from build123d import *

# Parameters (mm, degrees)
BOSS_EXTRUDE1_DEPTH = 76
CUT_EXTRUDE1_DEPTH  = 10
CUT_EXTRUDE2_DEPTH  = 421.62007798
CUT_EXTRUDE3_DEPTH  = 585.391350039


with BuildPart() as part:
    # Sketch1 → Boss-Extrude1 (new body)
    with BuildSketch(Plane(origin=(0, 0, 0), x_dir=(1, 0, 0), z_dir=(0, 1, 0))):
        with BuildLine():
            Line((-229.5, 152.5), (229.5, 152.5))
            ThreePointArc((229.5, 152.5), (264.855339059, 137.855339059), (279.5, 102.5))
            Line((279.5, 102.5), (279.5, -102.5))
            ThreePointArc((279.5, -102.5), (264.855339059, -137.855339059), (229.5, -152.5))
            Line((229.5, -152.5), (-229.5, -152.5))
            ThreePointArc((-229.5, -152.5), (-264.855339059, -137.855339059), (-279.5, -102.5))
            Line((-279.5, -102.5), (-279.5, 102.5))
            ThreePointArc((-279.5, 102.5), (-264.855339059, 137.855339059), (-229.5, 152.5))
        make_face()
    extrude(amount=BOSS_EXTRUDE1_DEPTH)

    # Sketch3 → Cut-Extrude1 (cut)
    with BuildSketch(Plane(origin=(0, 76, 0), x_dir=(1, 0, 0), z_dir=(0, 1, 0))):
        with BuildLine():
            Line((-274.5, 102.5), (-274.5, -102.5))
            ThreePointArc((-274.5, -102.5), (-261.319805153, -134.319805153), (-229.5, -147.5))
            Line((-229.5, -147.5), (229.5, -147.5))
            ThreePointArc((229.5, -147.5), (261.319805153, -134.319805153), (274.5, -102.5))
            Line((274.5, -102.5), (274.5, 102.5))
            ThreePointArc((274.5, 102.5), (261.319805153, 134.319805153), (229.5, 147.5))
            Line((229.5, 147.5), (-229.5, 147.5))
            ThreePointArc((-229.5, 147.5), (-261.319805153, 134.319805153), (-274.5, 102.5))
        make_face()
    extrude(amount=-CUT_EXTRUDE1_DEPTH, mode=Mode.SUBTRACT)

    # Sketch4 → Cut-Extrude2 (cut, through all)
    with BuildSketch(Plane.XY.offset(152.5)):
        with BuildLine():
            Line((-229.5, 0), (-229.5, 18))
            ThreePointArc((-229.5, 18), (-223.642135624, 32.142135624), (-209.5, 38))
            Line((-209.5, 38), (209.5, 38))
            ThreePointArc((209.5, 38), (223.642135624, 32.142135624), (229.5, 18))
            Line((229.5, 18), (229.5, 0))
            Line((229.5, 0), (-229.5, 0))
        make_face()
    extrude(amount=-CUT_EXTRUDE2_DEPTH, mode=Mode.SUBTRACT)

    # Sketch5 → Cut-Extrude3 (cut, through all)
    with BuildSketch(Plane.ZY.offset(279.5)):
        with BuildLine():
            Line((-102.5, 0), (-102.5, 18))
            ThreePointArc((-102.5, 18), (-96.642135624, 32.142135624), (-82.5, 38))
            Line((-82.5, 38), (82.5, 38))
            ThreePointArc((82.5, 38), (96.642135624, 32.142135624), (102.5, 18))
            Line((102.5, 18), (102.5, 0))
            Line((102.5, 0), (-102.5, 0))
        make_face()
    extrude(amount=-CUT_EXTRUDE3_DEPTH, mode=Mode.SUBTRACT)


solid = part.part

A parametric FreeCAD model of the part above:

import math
import FreeCAD as App
import Part
import Sketcher
from FreeCAD import Vector

doc = App.newDocument("Part")
body = doc.addObject("PartDesign::Body", "Body")

sketch1 = doc.addObject("Sketcher::SketchObject", "Sketch")
body.addObject(sketch1)
sketch1.AttachmentSupport = (doc.XZ_Plane, [""])
sketch1.MapMode = "FlatFace"
sketch1.addGeometry(Part.LineSegment(Vector(230, -152, 0), Vector(-230, -152, 0)), False)
sketch1.addGeometry(Part.ArcOfCircle(Part.Circle(Vector(-229, -102, 0), Vector(0, 0, 1), 50), math.radians(-180), math.radians(-90)), False)
sketch1.addGeometry(Part.LineSegment(Vector(-280, -102, 0), Vector(-280, 102, 0)), False)
sketch1.addGeometry(Part.ArcOfCircle(Part.Circle(Vector(-229, 102, 0), Vector(0, 0, 1), 50), math.radians(90), math.radians(180)), False)
sketch1.addGeometry(Part.LineSegment(Vector(-230, 152, 0), Vector(230, 152, 0)), False)
sketch1.addGeometry(Part.ArcOfCircle(Part.Circle(Vector(229, 102, 0), Vector(0, 0, 1), 50), math.radians(0), math.radians(90)), False)
sketch1.addGeometry(Part.LineSegment(Vector(280, 102, 0), Vector(280, -102, 0)), False)
sketch1.addGeometry(Part.ArcOfCircle(Part.Circle(Vector(229, -102, 0), Vector(0, 0, 1), 50), math.radians(-90), math.radians(0)), False)
sketch1.addConstraint(Sketcher.Constraint("Tangent", 0, 2, 1, 2))
sketch1.addConstraint(Sketcher.Constraint("Tangent", 1, 1, 2, 1))
sketch1.addConstraint(Sketcher.Constraint("Tangent", 2, 2, 3, 2))
sketch1.addConstraint(Sketcher.Constraint("Tangent", 3, 1, 4, 1))
sketch1.addConstraint(Sketcher.Constraint("Tangent", 4, 2, 5, 2))
sketch1.addConstraint(Sketcher.Constraint("Tangent", 5, 1, 6, 1))
sketch1.addConstraint(Sketcher.Constraint("Tangent", 6, 2, 7, 2))
sketch1.addConstraint(Sketcher.Constraint("Tangent", 7, 1, 0, 1))
sketch1.addConstraint(Sketcher.Constraint("Horizontal", 0))
sketch1.addConstraint(Sketcher.Constraint("Vertical", 2))
sketch1.addConstraint(Sketcher.Constraint("Horizontal", 4))
sketch1.addConstraint(Sketcher.Constraint("Vertical", 6))
sketch1.addConstraint(Sketcher.Constraint("Equal", 1, 3))
sketch1.addConstraint(Sketcher.Constraint("Equal", 3, 5))
sketch1.addConstraint(Sketcher.Constraint("Equal", 5, 7))
sketch1.addConstraint(Sketcher.Constraint("Symmetric", 1, 3, 5, 3, -1, 1))
sketch1.addConstraint(Sketcher.Constraint("Radius", 1, 50.0))
sketch1.addConstraint(Sketcher.Constraint("DistanceX", 0, 2, 0, 1, 459.0))
sketch1.addConstraint(Sketcher.Constraint("DistanceY", 2, 1, 2, 2, 205.0))
pad1 = doc.addObject("PartDesign::Pad", "Pad")
body.addObject(pad1)
pad1.Profile = sketch1
pad1.Length = 76
pad1.Reversed = True

sketch2 = doc.addObject("Sketcher::SketchObject", "Sketch001")
body.addObject(sketch2)
sketch2.AttachmentSupport = (doc.XZ_Plane, [""])
sketch2.MapMode = "FlatFace"
sketch2.AttachmentOffset = App.Placement(Vector(0, 0, -76), App.Rotation())
sketch2.addGeometry(Part.LineSegment(Vector(-274, -102, 0), Vector(-274, 102, 0)), False)
sketch2.addGeometry(Part.ArcOfCircle(Part.Circle(Vector(-229, 102, 0), Vector(0, 0, 1), 45), math.radians(90), math.radians(180)), False)
sketch2.addGeometry(Part.LineSegment(Vector(-230, 148, 0), Vector(230, 148, 0)), False)
sketch2.addGeometry(Part.ArcOfCircle(Part.Circle(Vector(229, 102, 0), Vector(0, 0, 1), 45), math.radians(0), math.radians(90)), False)
sketch2.addGeometry(Part.LineSegment(Vector(274, 102, 0), Vector(274, -102, 0)), False)
sketch2.addGeometry(Part.ArcOfCircle(Part.Circle(Vector(229, -102, 0), Vector(0, 0, 1), 45), math.radians(-90), math.radians(0)), False)
sketch2.addGeometry(Part.LineSegment(Vector(230, -148, 0), Vector(-230, -148, 0)), False)
sketch2.addGeometry(Part.ArcOfCircle(Part.Circle(Vector(-229, -102, 0), Vector(0, 0, 1), 45), math.radians(-180), math.radians(-90)), False)
sketch2.addConstraint(Sketcher.Constraint("Tangent", 0, 2, 1, 2))
sketch2.addConstraint(Sketcher.Constraint("Tangent", 1, 1, 2, 1))
sketch2.addConstraint(Sketcher.Constraint("Tangent", 2, 2, 3, 2))
sketch2.addConstraint(Sketcher.Constraint("Tangent", 3, 1, 4, 1))
sketch2.addConstraint(Sketcher.Constraint("Tangent", 4, 2, 5, 2))
sketch2.addConstraint(Sketcher.Constraint("Tangent", 5, 1, 6, 1))
sketch2.addConstraint(Sketcher.Constraint("Tangent", 6, 2, 7, 2))
sketch2.addConstraint(Sketcher.Constraint("Tangent", 7, 1, 0, 1))
sketch2.addConstraint(Sketcher.Constraint("Vertical", 0))
sketch2.addConstraint(Sketcher.Constraint("Horizontal", 2))
sketch2.addConstraint(Sketcher.Constraint("Vertical", 4))
sketch2.addConstraint(Sketcher.Constraint("Horizontal", 6))
sketch2.addConstraint(Sketcher.Constraint("Equal", 1, 3))
sketch2.addConstraint(Sketcher.Constraint("Equal", 3, 5))
sketch2.addConstraint(Sketcher.Constraint("Equal", 5, 7))
sketch2.addConstraint(Sketcher.Constraint("Symmetric", 1, 3, 5, 3, -1, 1))
sketch2.addConstraint(Sketcher.Constraint("Radius", 1, 45.0))
sketch2.addConstraint(Sketcher.Constraint("DistanceX", 2, 1, 2, 2, 459.0))
sketch2.addConstraint(Sketcher.Constraint("DistanceY", 0, 1, 0, 2, 205.0))
pocket1 = doc.addObject("PartDesign::Pocket", "Pocket")
body.addObject(pocket1)
pocket1.Profile = sketch2
pocket1.Length = 10
pocket1.Reversed = True

sketch3 = doc.addObject("Sketcher::SketchObject", "Sketch002")
body.addObject(sketch3)
sketch3.AttachmentSupport = (doc.XY_Plane, [""])
sketch3.MapMode = "FlatFace"
sketch3.AttachmentOffset = App.Placement(Vector(0, 0, 152.5), App.Rotation())
sketch3.addGeometry(Part.LineSegment(Vector(-230, 18, 0), Vector(-230, 0, 0)), False)
sketch3.addGeometry(Part.LineSegment(Vector(-230, 0, 0), Vector(230, 0, 0)), False)
sketch3.addGeometry(Part.LineSegment(Vector(230, 0, 0), Vector(230, 18, 0)), False)
sketch3.addGeometry(Part.ArcOfCircle(Part.Circle(Vector(210, 18, 0), Vector(0, 0, 1), 20), math.radians(0), math.radians(90)), False)
sketch3.addGeometry(Part.LineSegment(Vector(210, 38, 0), Vector(-210, 38, 0)), False)
sketch3.addGeometry(Part.ArcOfCircle(Part.Circle(Vector(-210, 18, 0), Vector(0, 0, 1), 20), math.radians(90), math.radians(180)), False)
sketch3.addConstraint(Sketcher.Constraint("Coincident", 0, 2, 1, 1))
sketch3.addConstraint(Sketcher.Constraint("Coincident", 1, 2, 2, 1))
sketch3.addConstraint(Sketcher.Constraint("Tangent", 2, 2, 3, 1))
sketch3.addConstraint(Sketcher.Constraint("Tangent", 3, 2, 4, 1))
sketch3.addConstraint(Sketcher.Constraint("Tangent", 4, 2, 5, 1))
sketch3.addConstraint(Sketcher.Constraint("Tangent", 5, 2, 0, 1))
sketch3.addConstraint(Sketcher.Constraint("Vertical", 0))
sketch3.addConstraint(Sketcher.Constraint("Horizontal", 1))
sketch3.addConstraint(Sketcher.Constraint("Vertical", 2))
sketch3.addConstraint(Sketcher.Constraint("Horizontal", 4))
sketch3.addConstraint(Sketcher.Constraint("Equal", 3, 5))
sketch3.addConstraint(Sketcher.Constraint("Symmetric", 0, 2, 1, 2, -1, 1))
sketch3.addConstraint(Sketcher.Constraint("Radius", 3, 20.0))
sketch3.addConstraint(Sketcher.Constraint("DistanceX", 1, 1, 1, 2, 459.0))
sketch3.addConstraint(Sketcher.Constraint("DistanceY", 0, 2, 0, 1, 18.0))
pocket2 = doc.addObject("PartDesign::Pocket", "Pocket001")
body.addObject(pocket2)
pocket2.Profile = sketch3
pocket2.Type = "ThroughAll"

sketch4 = doc.addObject("Sketcher::SketchObject", "Sketch003")
body.addObject(sketch4)
sketch4.AttachmentSupport = (doc.YZ_Plane, [""])
sketch4.MapMode = "FlatFace"
sketch4.AttachmentOffset = App.Placement(Vector(0, 0, -279.5), App.Rotation())
sketch4.addGeometry(Part.LineSegment(Vector(18, -102, 0), Vector(0, -102, 0)), False)
sketch4.addGeometry(Part.LineSegment(Vector(0, -102, 0), Vector(0, 102, 0)), False)
sketch4.addGeometry(Part.LineSegment(Vector(0, 102, 0), Vector(18, 102, 0)), False)
sketch4.addGeometry(Part.ArcOfCircle(Part.Circle(Vector(18, 83, 0), Vector(0, 0, 1), 20), math.radians(0), math.radians(90)), False)
sketch4.addGeometry(Part.LineSegment(Vector(38, 82, 0), Vector(38, -82, 0)), False)
sketch4.addGeometry(Part.ArcOfCircle(Part.Circle(Vector(18, -83, 0), Vector(0, 0, 1), 20), math.radians(-90), math.radians(0)), False)
sketch4.addConstraint(Sketcher.Constraint("Coincident", 0, 2, 1, 1))
sketch4.addConstraint(Sketcher.Constraint("Coincident", 1, 2, 2, 1))
sketch4.addConstraint(Sketcher.Constraint("Tangent", 2, 2, 3, 2))
sketch4.addConstraint(Sketcher.Constraint("Tangent", 3, 1, 4, 1))
sketch4.addConstraint(Sketcher.Constraint("Tangent", 4, 2, 5, 2))
sketch4.addConstraint(Sketcher.Constraint("Tangent", 5, 1, 0, 1))
sketch4.addConstraint(Sketcher.Constraint("Horizontal", 0))
sketch4.addConstraint(Sketcher.Constraint("Vertical", 1))
sketch4.addConstraint(Sketcher.Constraint("Horizontal", 2))
sketch4.addConstraint(Sketcher.Constraint("Vertical", 4))
sketch4.addConstraint(Sketcher.Constraint("Equal", 3, 5))
sketch4.addConstraint(Sketcher.Constraint("Symmetric", 0, 2, 1, 2, -1, 1))
sketch4.addConstraint(Sketcher.Constraint("Radius", 3, 20.0))
sketch4.addConstraint(Sketcher.Constraint("DistanceX", 0, 2, 0, 1, 18.0))
sketch4.addConstraint(Sketcher.Constraint("DistanceY", 1, 1, 1, 2, 205.0))
pocket3 = doc.addObject("PartDesign::Pocket", "Pocket002")
body.addObject(pocket3)
pocket3.Profile = sketch4
pocket3.Type = "ThroughAll"
pocket3.Reversed = True

doc.recompute()
